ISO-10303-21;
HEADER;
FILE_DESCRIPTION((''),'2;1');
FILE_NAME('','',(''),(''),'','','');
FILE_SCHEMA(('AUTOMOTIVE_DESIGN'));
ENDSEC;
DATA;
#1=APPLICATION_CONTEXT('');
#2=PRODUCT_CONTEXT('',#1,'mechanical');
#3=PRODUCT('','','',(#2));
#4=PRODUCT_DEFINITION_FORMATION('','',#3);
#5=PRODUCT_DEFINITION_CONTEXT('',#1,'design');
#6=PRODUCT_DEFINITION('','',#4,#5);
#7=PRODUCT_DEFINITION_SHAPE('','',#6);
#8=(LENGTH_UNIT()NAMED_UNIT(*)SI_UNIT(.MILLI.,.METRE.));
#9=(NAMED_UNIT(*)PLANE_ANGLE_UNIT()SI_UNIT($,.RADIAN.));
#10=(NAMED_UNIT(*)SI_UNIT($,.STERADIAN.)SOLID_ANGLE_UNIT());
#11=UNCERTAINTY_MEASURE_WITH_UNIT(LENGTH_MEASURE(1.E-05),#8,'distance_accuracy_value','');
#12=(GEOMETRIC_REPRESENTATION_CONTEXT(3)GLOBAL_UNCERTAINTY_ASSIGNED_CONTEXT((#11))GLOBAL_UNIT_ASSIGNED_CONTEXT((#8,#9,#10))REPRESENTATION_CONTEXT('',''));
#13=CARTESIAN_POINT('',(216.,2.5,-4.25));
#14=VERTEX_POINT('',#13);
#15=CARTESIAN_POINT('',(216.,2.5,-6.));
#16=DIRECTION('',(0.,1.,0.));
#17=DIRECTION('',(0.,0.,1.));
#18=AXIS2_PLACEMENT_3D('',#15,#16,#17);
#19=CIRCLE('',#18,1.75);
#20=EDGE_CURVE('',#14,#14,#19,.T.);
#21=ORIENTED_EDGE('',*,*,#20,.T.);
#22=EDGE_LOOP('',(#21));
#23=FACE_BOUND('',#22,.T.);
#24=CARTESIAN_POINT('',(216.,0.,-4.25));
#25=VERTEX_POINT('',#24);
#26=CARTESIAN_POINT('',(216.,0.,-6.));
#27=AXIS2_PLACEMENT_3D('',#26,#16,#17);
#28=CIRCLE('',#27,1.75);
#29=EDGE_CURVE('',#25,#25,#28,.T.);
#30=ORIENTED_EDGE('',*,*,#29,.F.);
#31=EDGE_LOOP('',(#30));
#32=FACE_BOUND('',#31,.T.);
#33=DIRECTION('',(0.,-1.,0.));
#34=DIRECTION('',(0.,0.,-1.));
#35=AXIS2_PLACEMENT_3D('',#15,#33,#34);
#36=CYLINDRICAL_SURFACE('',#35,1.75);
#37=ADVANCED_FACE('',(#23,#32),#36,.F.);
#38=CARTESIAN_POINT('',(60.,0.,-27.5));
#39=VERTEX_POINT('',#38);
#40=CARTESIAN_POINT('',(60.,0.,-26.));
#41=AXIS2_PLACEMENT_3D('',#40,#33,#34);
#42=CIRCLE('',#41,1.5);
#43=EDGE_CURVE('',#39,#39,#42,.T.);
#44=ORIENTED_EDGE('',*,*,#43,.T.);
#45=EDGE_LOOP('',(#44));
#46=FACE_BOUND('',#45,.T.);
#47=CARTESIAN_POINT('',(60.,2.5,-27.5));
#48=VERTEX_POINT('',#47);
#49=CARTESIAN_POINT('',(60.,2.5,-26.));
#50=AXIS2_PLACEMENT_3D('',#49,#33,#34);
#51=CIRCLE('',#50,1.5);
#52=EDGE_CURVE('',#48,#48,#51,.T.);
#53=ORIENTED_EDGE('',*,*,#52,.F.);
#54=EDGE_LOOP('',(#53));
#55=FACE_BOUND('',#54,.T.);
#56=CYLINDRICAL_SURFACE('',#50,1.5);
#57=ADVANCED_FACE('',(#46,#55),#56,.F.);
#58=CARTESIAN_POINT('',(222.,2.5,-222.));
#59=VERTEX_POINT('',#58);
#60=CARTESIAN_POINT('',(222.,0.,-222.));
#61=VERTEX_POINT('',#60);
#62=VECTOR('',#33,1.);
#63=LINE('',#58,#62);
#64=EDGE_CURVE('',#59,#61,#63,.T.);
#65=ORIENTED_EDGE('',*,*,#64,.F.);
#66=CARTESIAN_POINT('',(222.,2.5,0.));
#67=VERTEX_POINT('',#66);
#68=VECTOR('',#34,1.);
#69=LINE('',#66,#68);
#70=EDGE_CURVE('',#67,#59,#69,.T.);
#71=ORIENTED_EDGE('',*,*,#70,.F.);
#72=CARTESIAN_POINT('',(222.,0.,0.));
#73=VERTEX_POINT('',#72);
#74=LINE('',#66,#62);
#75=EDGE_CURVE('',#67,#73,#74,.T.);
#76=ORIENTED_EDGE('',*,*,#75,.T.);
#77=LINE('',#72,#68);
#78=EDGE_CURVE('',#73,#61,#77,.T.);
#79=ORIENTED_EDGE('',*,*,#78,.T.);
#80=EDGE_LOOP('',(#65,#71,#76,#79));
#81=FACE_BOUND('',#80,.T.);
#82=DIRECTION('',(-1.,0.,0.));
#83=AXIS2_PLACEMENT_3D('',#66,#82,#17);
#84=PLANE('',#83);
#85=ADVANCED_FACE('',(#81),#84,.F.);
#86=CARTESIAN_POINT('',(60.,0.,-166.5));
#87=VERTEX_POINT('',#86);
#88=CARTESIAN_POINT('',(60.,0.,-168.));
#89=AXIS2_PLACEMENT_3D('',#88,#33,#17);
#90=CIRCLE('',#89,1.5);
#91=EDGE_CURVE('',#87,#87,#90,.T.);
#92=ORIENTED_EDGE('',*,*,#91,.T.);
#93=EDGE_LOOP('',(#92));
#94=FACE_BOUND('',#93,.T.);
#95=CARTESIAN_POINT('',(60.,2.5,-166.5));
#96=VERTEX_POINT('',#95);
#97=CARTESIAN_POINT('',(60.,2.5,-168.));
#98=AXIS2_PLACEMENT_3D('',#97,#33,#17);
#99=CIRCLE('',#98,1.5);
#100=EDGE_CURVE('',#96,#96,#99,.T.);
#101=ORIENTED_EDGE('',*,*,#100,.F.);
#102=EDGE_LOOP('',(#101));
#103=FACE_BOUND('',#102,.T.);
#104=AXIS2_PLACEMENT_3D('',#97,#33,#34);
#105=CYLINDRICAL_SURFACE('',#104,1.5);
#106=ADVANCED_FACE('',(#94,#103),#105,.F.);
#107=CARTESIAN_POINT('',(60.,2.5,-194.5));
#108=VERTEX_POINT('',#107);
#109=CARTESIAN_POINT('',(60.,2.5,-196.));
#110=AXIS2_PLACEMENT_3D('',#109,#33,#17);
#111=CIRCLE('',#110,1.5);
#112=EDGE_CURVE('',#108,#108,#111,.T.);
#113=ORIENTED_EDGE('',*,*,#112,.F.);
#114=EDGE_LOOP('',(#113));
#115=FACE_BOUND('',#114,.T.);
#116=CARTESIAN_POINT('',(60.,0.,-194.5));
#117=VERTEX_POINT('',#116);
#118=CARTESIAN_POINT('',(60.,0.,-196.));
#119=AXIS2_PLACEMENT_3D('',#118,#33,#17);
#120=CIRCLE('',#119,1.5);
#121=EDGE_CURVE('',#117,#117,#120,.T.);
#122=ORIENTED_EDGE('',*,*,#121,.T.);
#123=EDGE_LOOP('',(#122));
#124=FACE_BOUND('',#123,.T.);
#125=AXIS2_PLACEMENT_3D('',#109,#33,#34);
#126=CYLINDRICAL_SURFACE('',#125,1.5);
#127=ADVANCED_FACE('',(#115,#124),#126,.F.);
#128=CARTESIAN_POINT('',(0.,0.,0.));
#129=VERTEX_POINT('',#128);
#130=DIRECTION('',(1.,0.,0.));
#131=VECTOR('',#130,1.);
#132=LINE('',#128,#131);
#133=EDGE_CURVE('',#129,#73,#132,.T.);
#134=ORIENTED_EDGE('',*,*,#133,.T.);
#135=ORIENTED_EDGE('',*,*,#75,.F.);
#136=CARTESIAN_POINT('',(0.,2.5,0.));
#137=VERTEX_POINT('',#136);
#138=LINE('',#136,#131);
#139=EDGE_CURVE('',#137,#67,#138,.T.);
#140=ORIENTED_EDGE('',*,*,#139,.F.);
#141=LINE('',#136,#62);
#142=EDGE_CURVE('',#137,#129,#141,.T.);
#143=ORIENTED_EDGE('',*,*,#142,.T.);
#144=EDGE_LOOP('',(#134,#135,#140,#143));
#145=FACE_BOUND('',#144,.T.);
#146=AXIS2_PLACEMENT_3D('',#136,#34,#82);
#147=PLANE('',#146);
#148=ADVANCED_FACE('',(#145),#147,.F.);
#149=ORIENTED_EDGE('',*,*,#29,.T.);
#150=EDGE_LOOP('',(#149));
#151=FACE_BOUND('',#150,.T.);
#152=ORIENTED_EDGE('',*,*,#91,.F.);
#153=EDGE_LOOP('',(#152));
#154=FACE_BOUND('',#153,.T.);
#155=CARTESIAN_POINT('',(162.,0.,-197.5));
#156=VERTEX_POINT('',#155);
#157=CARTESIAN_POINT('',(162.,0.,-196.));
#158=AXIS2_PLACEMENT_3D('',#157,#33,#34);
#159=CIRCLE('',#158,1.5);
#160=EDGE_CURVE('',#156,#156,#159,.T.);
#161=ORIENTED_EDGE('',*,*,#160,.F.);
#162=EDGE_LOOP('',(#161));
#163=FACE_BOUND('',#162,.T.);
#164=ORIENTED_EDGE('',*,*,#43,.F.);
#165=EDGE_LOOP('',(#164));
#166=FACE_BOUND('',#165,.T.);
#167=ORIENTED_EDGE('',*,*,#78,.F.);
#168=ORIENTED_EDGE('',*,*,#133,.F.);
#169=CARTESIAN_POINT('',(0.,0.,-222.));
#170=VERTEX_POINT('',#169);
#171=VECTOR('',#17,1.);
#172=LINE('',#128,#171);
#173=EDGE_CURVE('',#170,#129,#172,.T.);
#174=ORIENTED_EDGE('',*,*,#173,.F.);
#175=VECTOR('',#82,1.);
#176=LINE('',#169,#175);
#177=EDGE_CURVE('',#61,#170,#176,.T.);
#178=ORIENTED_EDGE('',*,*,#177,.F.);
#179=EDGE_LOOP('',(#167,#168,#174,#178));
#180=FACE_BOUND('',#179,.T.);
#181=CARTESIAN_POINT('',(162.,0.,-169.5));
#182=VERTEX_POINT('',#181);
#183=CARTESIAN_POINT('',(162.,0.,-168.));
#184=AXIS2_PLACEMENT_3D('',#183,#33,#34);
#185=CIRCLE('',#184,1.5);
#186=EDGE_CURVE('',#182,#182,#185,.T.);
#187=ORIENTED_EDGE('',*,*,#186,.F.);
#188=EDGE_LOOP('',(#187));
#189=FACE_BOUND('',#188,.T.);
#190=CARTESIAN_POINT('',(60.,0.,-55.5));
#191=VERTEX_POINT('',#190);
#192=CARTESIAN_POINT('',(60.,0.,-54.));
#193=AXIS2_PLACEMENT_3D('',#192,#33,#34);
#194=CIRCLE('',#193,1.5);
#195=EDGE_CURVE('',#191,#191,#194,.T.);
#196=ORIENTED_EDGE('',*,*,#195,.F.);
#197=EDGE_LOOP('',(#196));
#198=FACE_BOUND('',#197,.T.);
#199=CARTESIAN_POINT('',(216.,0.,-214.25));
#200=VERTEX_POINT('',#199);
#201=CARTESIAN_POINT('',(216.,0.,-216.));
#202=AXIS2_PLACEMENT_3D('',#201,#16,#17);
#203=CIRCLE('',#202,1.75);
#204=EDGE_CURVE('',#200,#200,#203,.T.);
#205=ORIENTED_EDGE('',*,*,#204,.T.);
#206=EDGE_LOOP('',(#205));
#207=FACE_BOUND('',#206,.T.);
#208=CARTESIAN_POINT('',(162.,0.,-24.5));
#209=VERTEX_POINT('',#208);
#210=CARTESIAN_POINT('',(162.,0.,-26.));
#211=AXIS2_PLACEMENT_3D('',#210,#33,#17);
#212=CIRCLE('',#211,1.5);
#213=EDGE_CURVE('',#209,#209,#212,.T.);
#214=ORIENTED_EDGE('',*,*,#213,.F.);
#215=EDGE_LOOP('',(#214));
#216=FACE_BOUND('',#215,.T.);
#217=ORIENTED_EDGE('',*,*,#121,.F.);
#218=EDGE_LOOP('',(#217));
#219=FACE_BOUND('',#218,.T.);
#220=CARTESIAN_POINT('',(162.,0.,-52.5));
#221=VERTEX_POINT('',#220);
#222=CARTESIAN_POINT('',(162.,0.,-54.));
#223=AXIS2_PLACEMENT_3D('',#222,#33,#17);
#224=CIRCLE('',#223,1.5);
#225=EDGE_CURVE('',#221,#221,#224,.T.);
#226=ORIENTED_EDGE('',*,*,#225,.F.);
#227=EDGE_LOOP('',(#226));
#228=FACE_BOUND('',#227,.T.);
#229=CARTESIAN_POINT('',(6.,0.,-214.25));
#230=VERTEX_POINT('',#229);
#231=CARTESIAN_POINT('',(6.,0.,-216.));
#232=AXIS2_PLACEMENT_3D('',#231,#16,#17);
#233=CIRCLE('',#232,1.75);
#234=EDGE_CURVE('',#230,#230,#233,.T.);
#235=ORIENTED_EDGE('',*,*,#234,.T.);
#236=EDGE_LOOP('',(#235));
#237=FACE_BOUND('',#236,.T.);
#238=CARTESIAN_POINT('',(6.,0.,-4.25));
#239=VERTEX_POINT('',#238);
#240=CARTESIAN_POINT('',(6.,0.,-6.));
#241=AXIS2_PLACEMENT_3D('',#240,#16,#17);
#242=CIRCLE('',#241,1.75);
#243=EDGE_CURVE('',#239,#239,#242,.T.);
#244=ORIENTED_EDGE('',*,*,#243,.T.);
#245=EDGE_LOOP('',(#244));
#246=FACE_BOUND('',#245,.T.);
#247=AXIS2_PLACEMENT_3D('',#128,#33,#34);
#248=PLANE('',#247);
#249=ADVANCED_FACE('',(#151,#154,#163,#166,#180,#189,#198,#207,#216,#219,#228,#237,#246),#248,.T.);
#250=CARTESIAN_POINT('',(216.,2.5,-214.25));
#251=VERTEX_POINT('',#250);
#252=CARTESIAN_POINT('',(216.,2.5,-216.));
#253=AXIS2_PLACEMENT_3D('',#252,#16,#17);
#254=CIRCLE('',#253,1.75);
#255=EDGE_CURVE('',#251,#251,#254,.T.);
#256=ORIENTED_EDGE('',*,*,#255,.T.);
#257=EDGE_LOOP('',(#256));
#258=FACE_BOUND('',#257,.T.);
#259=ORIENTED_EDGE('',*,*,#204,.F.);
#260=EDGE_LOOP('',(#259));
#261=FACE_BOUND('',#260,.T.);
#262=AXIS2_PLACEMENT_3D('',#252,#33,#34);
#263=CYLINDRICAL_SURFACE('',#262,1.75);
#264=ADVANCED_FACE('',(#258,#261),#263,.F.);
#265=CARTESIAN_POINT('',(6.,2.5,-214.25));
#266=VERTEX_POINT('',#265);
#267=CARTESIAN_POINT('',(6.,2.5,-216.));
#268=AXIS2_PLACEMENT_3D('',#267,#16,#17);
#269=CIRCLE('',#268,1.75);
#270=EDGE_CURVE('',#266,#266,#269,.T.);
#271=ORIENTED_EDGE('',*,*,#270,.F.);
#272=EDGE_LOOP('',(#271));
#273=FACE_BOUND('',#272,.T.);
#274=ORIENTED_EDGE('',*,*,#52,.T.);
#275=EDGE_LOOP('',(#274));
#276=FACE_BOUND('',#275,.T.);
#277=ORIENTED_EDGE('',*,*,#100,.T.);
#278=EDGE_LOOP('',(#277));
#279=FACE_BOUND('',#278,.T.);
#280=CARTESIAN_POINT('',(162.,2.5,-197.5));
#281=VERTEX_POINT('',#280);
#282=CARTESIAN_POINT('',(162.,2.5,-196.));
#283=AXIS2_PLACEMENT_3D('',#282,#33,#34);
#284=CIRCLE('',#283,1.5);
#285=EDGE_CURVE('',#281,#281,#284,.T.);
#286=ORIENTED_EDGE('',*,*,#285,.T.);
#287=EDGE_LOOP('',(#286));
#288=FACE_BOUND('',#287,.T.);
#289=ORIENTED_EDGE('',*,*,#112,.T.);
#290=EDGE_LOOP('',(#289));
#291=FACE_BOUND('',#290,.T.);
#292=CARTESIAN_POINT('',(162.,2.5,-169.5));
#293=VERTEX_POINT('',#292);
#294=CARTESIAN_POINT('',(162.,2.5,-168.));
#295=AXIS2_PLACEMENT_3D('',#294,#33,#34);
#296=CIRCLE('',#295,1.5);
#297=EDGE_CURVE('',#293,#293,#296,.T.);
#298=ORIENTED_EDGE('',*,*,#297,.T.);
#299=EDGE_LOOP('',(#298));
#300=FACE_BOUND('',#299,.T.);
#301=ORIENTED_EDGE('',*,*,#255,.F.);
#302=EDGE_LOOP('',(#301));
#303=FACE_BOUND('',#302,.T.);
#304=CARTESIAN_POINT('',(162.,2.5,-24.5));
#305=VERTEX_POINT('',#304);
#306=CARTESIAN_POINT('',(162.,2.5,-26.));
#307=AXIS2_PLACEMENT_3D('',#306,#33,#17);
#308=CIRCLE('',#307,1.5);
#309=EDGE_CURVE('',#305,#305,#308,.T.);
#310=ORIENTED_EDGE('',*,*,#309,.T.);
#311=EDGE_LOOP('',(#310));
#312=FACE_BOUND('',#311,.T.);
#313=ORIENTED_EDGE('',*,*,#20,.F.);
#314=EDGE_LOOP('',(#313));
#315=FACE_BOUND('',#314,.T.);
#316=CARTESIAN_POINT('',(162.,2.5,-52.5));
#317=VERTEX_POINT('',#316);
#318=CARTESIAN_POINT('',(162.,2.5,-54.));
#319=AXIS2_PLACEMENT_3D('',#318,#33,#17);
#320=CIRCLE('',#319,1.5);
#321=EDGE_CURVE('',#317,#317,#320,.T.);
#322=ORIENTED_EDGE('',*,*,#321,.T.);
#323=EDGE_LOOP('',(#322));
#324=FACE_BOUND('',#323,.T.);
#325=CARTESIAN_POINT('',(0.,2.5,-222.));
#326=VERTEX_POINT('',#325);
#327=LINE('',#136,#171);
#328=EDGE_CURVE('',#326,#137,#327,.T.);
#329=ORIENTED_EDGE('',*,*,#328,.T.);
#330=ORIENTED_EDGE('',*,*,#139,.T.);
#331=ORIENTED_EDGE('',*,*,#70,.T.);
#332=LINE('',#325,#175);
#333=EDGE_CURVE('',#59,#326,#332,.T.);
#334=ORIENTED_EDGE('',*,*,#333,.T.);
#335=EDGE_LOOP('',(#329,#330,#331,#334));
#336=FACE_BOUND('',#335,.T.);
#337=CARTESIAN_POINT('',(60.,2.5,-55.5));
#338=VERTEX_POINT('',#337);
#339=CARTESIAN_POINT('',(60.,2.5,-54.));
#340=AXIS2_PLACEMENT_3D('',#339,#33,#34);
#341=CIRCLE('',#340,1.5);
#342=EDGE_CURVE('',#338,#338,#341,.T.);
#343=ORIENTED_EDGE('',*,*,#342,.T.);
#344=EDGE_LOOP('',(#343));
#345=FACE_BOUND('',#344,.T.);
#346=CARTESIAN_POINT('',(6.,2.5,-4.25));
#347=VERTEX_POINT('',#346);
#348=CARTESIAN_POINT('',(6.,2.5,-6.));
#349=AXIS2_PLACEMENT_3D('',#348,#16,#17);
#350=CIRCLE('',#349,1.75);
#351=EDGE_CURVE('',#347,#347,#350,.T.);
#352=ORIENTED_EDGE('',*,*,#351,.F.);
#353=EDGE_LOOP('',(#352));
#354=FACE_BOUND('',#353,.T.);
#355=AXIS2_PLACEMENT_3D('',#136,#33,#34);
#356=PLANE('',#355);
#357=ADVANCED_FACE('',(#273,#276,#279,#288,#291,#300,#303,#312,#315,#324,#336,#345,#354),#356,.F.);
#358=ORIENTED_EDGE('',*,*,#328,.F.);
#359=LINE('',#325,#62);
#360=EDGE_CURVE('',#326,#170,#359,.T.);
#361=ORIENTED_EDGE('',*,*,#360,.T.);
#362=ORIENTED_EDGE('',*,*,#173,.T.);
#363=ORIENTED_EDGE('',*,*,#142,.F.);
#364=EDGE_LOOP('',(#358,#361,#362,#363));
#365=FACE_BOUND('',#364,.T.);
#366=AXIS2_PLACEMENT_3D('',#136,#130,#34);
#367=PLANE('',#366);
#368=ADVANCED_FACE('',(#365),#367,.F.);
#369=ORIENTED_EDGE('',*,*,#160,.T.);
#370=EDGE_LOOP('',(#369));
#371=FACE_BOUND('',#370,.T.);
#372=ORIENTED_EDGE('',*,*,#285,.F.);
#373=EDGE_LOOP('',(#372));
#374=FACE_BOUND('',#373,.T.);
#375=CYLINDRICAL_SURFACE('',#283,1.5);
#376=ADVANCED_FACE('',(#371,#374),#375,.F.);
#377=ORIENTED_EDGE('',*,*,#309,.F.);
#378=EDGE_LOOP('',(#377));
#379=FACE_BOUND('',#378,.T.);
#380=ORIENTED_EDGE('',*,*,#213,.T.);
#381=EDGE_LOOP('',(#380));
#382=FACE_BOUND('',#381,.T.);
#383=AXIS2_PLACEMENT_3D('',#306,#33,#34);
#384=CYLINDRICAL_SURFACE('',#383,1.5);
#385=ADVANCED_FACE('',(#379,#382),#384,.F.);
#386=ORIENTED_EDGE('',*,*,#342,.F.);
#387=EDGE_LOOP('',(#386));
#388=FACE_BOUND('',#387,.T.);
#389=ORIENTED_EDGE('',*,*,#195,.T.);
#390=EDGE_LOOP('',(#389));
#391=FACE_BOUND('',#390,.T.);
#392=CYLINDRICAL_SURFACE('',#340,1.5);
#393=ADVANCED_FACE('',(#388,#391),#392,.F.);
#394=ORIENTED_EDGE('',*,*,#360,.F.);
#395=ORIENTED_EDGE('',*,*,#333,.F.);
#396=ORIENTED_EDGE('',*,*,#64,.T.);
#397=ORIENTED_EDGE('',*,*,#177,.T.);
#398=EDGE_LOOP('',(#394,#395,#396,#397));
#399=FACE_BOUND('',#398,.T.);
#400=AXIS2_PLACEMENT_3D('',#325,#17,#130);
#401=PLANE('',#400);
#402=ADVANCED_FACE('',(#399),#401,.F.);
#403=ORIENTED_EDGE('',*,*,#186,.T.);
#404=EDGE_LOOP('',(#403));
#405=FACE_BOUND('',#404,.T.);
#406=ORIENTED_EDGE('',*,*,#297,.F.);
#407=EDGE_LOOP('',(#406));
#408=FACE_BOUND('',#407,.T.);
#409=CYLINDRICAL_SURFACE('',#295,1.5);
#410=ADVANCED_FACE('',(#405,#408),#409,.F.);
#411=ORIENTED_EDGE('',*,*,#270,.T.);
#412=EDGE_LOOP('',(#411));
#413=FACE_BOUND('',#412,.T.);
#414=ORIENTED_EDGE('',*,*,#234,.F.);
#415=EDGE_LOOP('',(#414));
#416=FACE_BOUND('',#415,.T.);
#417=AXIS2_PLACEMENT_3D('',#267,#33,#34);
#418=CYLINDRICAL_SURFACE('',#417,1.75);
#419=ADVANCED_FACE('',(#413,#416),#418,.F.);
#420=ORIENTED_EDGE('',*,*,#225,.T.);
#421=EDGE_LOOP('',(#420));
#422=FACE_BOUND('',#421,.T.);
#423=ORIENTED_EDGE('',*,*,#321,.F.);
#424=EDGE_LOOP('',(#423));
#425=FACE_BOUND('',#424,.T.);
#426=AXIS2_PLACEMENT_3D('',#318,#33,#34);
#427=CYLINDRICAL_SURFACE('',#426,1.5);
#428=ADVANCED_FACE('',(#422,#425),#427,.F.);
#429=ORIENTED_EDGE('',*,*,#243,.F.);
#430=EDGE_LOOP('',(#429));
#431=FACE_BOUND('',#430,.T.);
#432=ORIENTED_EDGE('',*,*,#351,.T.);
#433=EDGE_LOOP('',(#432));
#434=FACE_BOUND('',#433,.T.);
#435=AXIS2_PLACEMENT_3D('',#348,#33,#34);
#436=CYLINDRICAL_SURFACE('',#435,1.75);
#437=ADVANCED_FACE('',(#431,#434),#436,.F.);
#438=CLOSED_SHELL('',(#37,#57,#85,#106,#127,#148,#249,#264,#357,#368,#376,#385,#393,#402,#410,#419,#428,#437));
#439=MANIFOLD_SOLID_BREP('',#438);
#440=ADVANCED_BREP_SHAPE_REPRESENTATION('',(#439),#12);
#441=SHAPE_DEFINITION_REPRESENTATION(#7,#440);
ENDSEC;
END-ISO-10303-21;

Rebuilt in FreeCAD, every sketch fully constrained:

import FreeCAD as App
import Part
import Sketcher
from FreeCAD import Vector
Q = App.Units.Quantity

doc = App.newDocument("Part")
params = doc.addObject("Spreadsheet::Sheet", "Params")
for row, (alias, value) in enumerate([
    ("sketch1_diameter", "3.5 mm"),
    ("sketch1_width", "222 mm"),
    ("pad1_length", "2.5 mm"),
    ("sketch2_diameter", "3 mm"),
], start=1):
    params.set(f"A{row}", alias)
    params.set(f"B{row}", "=" + value)
    params.setAlias(f"B{row}", alias)

body = doc.addObject("PartDesign::Body", "Body")

# Sketch on XZ plane
sketch1 = doc.addObject("Sketcher::SketchObject", "Sketch")
body.addObject(sketch1)
sketch1.AttachmentSupport = (doc.XZ_Plane, [""])
sketch1.MapMode = "FlatFace"
sketch1.addGeometry([
    Part.LineSegment(Vector(0, -222, 0), Vector(0, 0, 0)),  # 0
    Part.LineSegment(Vector(0, 0, 0), Vector(222, 0, 0)),  # 1
    Part.LineSegment(Vector(222, 0, 0), Vector(222, -222, 0)),  # 2
    Part.LineSegment(Vector(222, -222, 0), Vector(0, -222, 0)),  # 3
    Part.Circle(Vector(6, -6, 0), Vector(0, 0, 1), 1.8),  # 4
    Part.Circle(Vector(216, -6, 0), Vector(0, 0, 1), 1.8),  # 5
    Part.Circle(Vector(6, -216, 0), Vector(0, 0, 1), 1.8),  # 6
    Part.Circle(Vector(216, -216, 0), Vector(0, 0, 1), 1.8),  # 7
], False)
sketch1.addConstraint([
    Sketcher.Constraint("Coincident", 0, 2, 1, 1),
    Sketcher.Constraint("Coincident", 1, 2, 2, 1),
    Sketcher.Constraint("Coincident", 2, 2, 3, 1),
    Sketcher.Constraint("Coincident", 3, 2, 0, 1),
    Sketcher.Constraint("Vertical", 0),
    Sketcher.Constraint("Horizontal", 1),
    Sketcher.Constraint("Vertical", 2),
    Sketcher.Constraint("Horizontal", 3),
    Sketcher.Constraint("Coincident", 0, 2, -1, 1),
    Sketcher.Constraint("Equal", 4, 5),
    Sketcher.Constraint("Equal", 5, 6),
    Sketcher.Constraint("Equal", 6, 7),
    Sketcher.Constraint("Horizontal", 4, 3, 5, 3),
    Sketcher.Constraint("Horizontal", 6, 3, 7, 3),
    Sketcher.Constraint("Vertical", 4, 3, 6, 3),
    Sketcher.Constraint("Vertical", 5, 3, 7, 3),
    Sketcher.Constraint("Equal", 3, 0),
    Sketcher.Constraint("Diameter", 4, Q("3.5 mm")),
    Sketcher.Constraint("DistanceX", 1, 1, 1, 2, Q("222 mm")),
    Sketcher.Constraint("DistanceX", -1, 1, 4, 3, Q("6 mm")),
    Sketcher.Constraint("DistanceY", 4, 3, -1, 1, Q("6 mm")),
    Sketcher.Constraint("DistanceX", -1, 1, 5, 3, Q("216 mm")),
    Sketcher.Constraint("DistanceY", 6, 3, -1, 1, Q("216 mm")),
])
sketch1.setExpression("Constraints[17]", "Params.sketch1_diameter")
sketch1.setExpression("Constraints[18]", "Params.sketch1_width")
pad1 = doc.addObject("PartDesign::Pad", "Pad")
body.addObject(pad1)
pad1.Profile = sketch1
pad1.setExpression("Length", "Params.pad1_length")
pad1.Reversed = True

# Sketch on XZ plane
sketch2 = doc.addObject("Sketcher::SketchObject", "Sketch001")
body.addObject(sketch2)
sketch2.AttachmentSupport = (doc.XZ_Plane, [""])
sketch2.MapMode = "FlatFace"
sketch2.addGeometry([
    Part.Circle(Vector(60, -26, 0), Vector(0, 0, 1), 1.5),  # 0
    Part.Circle(Vector(60, -54, 0), Vector(0, 0, 1), 1.5),  # 1
    Part.Circle(Vector(60, -168, 0), Vector(0, 0, 1), 1.5),  # 2
    Part.Circle(Vector(60, -196, 0), Vector(0, 0, 1), 1.5),  # 3
    Part.Circle(Vector(162, -196, 0), Vector(0, 0, 1), 1.5),  # 4
    Part.Circle(Vector(162, -168, 0), Vector(0, 0, 1), 1.5),  # 5
    Part.Circle(Vector(162, -54, 0), Vector(0, 0, 1), 1.5),  # 6
    Part.Circle(Vector(162, -26, 0), Vector(0, 0, 1), 1.5),  # 7
], False)
sketch2.addConstraint([
    Sketcher.Constraint("Equal", 0, 1),
    Sketcher.Constraint("Equal", 1, 2),
    Sketcher.Constraint("Equal", 2, 3),
    Sketcher.Constraint("Equal", 3, 4),
    Sketcher.Constraint("Equal", 4, 5),
    Sketcher.Constraint("Equal", 5, 6),
    Sketcher.Constraint("Equal", 6, 7),
    Sketcher.Constraint("Horizontal", 3, 3, 4, 3),
    Sketcher.Constraint("Horizontal", 2, 3, 5, 3),
    Sketcher.Constraint("Horizontal", 1, 3, 6, 3),
    Sketcher.Constraint("Horizontal", 0, 3, 7, 3),
    Sketcher.Constraint("Vertical", 0, 3, 1, 3),
    Sketcher.Constraint("Vertical", 1, 3, 2, 3),
    Sketcher.Constraint("Vertical", 2, 3, 3, 3),
    Sketcher.Constraint("Vertical", 4, 3, 5, 3),
    Sketcher.Constraint("Vertical", 5, 3, 6, 3),
    Sketcher.Constraint("Vertical", 6, 3, 7, 3),
    Sketcher.Constraint("Diameter", 0, Q("3 mm")),
    Sketcher.Constraint("DistanceX", -1, 1, 0, 3, Q("60 mm")),
    Sketcher.Constraint("DistanceY", 0, 3, -1, 1, Q("26 mm")),
    Sketcher.Constraint("DistanceY", 1, 3, -1, 1, Q("54 mm")),
    Sketcher.Constraint("DistanceY", 2, 3, -1, 1, Q("168 mm")),
    Sketcher.Constraint("DistanceY", 3, 3, -1, 1, Q("196 mm")),
    Sketcher.Constraint("DistanceX", -1, 1, 4, 3, Q("162 mm")),
])
sketch2.setExpression("Constraints[17]", "Params.sketch2_diameter")
pocket1 = doc.addObject("PartDesign::Pocket", "Pocket")
body.addObject(pocket1)
pocket1.Profile = sketch2
pocket1.Type = "ThroughAll"

doc.recompute()
